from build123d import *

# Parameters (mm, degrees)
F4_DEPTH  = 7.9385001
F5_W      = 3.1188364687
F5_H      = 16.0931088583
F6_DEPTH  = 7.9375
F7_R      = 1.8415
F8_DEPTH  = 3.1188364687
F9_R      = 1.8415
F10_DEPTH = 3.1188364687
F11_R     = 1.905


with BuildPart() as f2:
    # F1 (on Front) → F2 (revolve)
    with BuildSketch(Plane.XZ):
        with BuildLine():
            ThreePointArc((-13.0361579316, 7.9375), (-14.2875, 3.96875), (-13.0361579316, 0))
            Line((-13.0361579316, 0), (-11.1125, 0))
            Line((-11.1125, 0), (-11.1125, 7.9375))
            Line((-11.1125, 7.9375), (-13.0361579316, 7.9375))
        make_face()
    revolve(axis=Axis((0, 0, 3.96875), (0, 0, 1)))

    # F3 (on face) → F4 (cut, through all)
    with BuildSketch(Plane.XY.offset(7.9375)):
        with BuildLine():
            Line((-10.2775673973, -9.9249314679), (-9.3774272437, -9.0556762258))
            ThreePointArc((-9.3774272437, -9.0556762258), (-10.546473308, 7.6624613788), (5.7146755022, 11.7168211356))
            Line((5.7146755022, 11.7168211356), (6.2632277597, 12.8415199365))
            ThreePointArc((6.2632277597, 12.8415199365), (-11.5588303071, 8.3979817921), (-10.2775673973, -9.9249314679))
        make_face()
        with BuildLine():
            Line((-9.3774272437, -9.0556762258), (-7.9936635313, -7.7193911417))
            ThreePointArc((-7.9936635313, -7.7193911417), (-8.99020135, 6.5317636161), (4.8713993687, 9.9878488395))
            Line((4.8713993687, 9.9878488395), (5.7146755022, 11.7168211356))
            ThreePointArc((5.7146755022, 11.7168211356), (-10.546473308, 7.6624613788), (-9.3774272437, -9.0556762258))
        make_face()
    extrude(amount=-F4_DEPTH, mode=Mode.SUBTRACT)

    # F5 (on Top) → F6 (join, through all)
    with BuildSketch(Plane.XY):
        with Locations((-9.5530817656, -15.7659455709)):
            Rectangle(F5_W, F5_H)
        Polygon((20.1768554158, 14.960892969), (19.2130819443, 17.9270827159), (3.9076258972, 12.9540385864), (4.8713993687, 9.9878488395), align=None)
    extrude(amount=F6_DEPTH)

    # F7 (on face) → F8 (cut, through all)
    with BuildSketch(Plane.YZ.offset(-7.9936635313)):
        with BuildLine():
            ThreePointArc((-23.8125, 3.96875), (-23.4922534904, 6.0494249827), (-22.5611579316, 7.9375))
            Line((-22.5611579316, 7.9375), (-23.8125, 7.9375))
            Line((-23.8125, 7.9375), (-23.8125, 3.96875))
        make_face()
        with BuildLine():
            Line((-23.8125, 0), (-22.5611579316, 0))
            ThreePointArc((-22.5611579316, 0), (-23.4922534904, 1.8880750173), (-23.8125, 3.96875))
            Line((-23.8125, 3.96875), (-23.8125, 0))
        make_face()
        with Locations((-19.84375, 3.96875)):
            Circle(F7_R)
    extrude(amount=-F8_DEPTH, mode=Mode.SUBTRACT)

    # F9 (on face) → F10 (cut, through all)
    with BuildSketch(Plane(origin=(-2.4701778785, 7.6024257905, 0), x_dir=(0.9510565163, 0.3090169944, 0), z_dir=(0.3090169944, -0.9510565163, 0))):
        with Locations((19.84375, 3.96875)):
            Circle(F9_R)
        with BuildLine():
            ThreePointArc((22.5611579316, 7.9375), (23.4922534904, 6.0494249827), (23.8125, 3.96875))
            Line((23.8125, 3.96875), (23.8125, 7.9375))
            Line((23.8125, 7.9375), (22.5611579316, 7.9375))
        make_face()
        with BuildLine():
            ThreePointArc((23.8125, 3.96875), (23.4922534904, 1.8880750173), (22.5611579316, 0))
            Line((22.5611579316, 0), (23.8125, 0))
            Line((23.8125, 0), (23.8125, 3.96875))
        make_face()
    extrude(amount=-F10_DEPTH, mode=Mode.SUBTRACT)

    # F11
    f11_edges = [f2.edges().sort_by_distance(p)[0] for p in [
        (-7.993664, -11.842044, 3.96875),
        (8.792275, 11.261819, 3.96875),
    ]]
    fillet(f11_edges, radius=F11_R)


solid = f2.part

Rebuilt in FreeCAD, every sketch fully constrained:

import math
import FreeCAD as App
import Part
import Sketcher
Q = App.Units.Quantity


def edges_at(feature, points):
    """Names of the edges that pass closest to the given points."""
    edges = feature.Shape.Edges
    near = lambda p: min(range(len(edges)), key=lambda i: edges[i].distToShape(Part.Vertex(*p))[0])
    return sorted({f"Edge{near(p) + 1}" for p in points})


def add_polygon(sketch, points):
    """Adds a closed chain of lines whose ends are joined by coincident constraints."""
    first, n = sketch.GeometryCount, len(points)
    for a, b in zip(points, points[1:] + points[:1]):
        sketch.addGeometry(Part.LineSegment(App.Vector(*a, 0), App.Vector(*b, 0)), False)
    for i in range(n):
        sketch.addConstraint(Sketcher.Constraint("Coincident", first + i, 2, first + (i + 1) % n, 1))

doc = App.newDocument("Part")
body = doc.addObject("PartDesign::Body", "Body")

# Sketch on XZ plane
sketch1 = body.newObject("Sketcher::SketchObject", "Sketch")
sketch1.AttachmentSupport = (doc.getObject("XZ_Plane"), [""])
sketch1.MapMode = "FlatFace"
sketch1.addGeometry([
    Part.ArcOfCircle(Part.Circle(App.Vector(-7.4, 4, 0), App.Vector(0, 0, 1), 6.9), math.radians(145), math.radians(215)),
    Part.LineSegment(App.Vector(-13, 0, 0), App.Vector(-11.1, 0, 0)),
    Part.LineSegment(App.Vector(-11.1, 0, 0), App.Vector(-11.1, 7.9, 0)),
    Part.LineSegment(App.Vector(-11.1, 7.9, 0), App.Vector(-13, 7.9, 0)),
], False)
sketch1.addConstraint([
    Sketcher.Constraint("Coincident", 0, 2, 1, 1),
    Sketcher.Constraint("Coincident", 1, 2, 2, 1),
    Sketcher.Constraint("Coincident", 2, 2, 3, 1),
    Sketcher.Constraint("Coincident", 3, 2, 0, 1),
    Sketcher.Constraint("Horizontal", 1),
    Sketcher.Constraint("Vertical", 2),
    Sketcher.Constraint("Horizontal", 3),
    Sketcher.Constraint("PointOnObject", 0, 2, -1),
    Sketcher.Constraint("Vertical", 0, 2, 3, 2),
    Sketcher.Constraint("DistanceY", 2, 1, 2, 2, Q("0.3125 in")),
    Sketcher.Constraint("DistanceX", 1, 2, -1, 1, Q("0.4375 in")),
    Sketcher.Constraint("Radius", 0, 6.919304),
    Sketcher.Constraint("DistanceX", 1, 1, 1, 2, 1.923658),
])
revolution = body.newObject("PartDesign::Revolution", "Revolution")
revolution.Profile = sketch1
revolution.ReferenceAxis = (sketch1, ["V_Axis"])
revolution.Angle = 360

# Sketch on XY plane
sketch2 = body.newObject("Sketcher::SketchObject", "Sketch001")
sketch2.AttachmentSupport = (doc.getObject("XY_Plane"), [""])
sketch2.MapMode = "FlatFace"
sketch2.AttachmentOffset = App.Placement(App.Vector(0, 0, 0.3125 * 25.4), App.Rotation())
sketch2.addGeometry([
    Part.LineSegment(App.Vector(-10.3, -9.9, 0), App.Vector(-9.4, -9.1, 0)),  # 0
    Part.LineSegment(App.Vector(-9.4, -9.1, 0), App.Vector(-8, -7.7, 0)),  # 1
    Part.ArcOfCircle(Part.Circle(App.Vector(0, 0, 0), App.Vector(0, 0, 1), 11.1), math.radians(64), math.radians(224)),  # 2
    Part.LineSegment(App.Vector(4.9, 10, 0), App.Vector(5.7, 11.7, 0)),  # 3
    Part.LineSegment(App.Vector(5.7, 11.7, 0), App.Vector(6.3, 12.8, 0)),  # 4
    Part.ArcOfCircle(Part.Circle(App.Vector(0, 0, 0), App.Vector(0, 0, 1), 14.3), math.radians(64), math.radians(224)),  # 5
], False)
sketch2.addConstraint([
    Sketcher.Constraint("Coincident", 0, 2, 1, 1),
    Sketcher.Constraint("Coincident", 1, 2, 2, 2),
    Sketcher.Constraint("Coincident", 2, 1, 3, 1),
    Sketcher.Constraint("Coincident", 3, 2, 4, 1),
    Sketcher.Constraint("Coincident", 4, 2, 5, 1),
    Sketcher.Constraint("Coincident", 5, 2, 0, 1),
    Sketcher.Constraint("Coincident", 2, 3, -1, 1),
    Sketcher.Constraint("Coincident", 5, 3, -1, 1),
    Sketcher.Constraint("Parallel", 0, 1),
    Sketcher.Constraint("Parallel", 3, 4),
    Sketcher.Constraint("Equal", 1, 3),
    Sketcher.Constraint("Angle", 0, Q("44 deg")),
    Sketcher.Constraint("Angle", 3, Q("64 deg")),
    Sketcher.Constraint("Radius", 2, Q("0.4375 in")),
    Sketcher.Constraint("Radius", 5, Q("0.5625 in")),
    Sketcher.Constraint("DistanceX", 2, 1, 3, 2, Q("0.0331998 in")),
    Sketcher.Constraint("DistanceX", -1, 1, 2, 1, 4.871399),
    Sketcher.Constraint("DistanceY", 1, 2, -1, 1, 7.719391),
])
pocket1 = body.newObject("PartDesign::Pocket", "Pocket")
pocket1.Profile = sketch2
pocket1.Type = "ThroughAll"

# Sketch on XY plane
sketch3 = body.newObject("Sketcher::SketchObject", "Sketch002")
sketch3.AttachmentSupport = (doc.getObject("XY_Plane"), [""])
sketch3.MapMode = "FlatFace"
add_polygon(sketch3, [(-11.1, -7.7), (-11.1, -23.8), (-8, -23.8), (-8, -7.7)])  # lines 0-3
add_polygon(sketch3, [(20.2, 15), (19.2, 17.9), (3.9, 13), (4.9, 10)])  # lines 4-7
sketch3.addConstraint([
    Sketcher.Constraint("Vertical", 0),
    Sketcher.Constraint("Horizontal", 1),
    Sketcher.Constraint("Vertical", 2),
    Sketcher.Constraint("Horizontal", 3),
    Sketcher.Constraint("Perpendicular", 4, 5),
    Sketcher.Constraint("Perpendicular", 5, 6),
    Sketcher.Constraint("Perpendicular", 6, 7),
    Sketcher.Constraint("Angle", 4, Q("108 deg")),
    Sketcher.Constraint("DistanceX", 0, 2, -1, 1, Q("0.4375 in")),
    Sketcher.Constraint("DistanceY", 0, 2, -1, 1, Q("0.9375 in")),
    Sketcher.Constraint("DistanceY", 0, 2, 0, 1, 16.093109),
    Sketcher.Constraint("DistanceX", -1, 1, 6, 2, 4.871399),
    Sketcher.Constraint("Distance", 5, 16.093109),
    Sketcher.Constraint("DistanceX", 1, 1, 1, 2, 3.118836),
    Sketcher.Constraint("DistanceX", -1, 1, 4, 2, 19.213082),
    Sketcher.Constraint("DistanceY", -1, 1, 5, 2, 12.954039),
])
pad1 = body.newObject("PartDesign::Pad", "Pad")
pad1.Profile = sketch3
pad1.Length = Q("0.3125 in")

# Sketch on YZ plane
sketch4 = body.newObject("Sketcher::SketchObject", "Sketch003")
sketch4.AttachmentSupport = (doc.getObject("YZ_Plane"), [""])
sketch4.MapMode = "FlatFace"
sketch4.AttachmentOffset = App.Placement(App.Vector(0, 0, -7.993664), App.Rotation())
sketch4.addGeometry([
    Part.ArcOfCircle(Part.Circle(App.Vector(-16.9, 4, 0), App.Vector(0, 0, 1), 6.9), math.radians(145), math.radians(180)),  # 0
    Part.LineSegment(App.Vector(-22.6, 7.9, 0), App.Vector(-23.8, 7.9, 0)),  # 1
    Part.LineSegment(App.Vector(-23.8, 7.9, 0), App.Vector(-23.8, 4, 0)),  # 2
    Part.LineSegment(App.Vector(-23.8, 0, 0), App.Vector(-22.6, 0, 0)),  # 3
    Part.ArcOfCircle(Part.Circle(App.Vector(-16.9, 4, 0), App.Vector(0, 0, 1), 6.9), math.radians(180), math.radians(215)),  # 4
    Part.LineSegment(App.Vector(-23.8, 4, 0), App.Vector(-23.8, 0, 0)),  # 5
    Part.Circle(App.Vector(-19.8, 4, 0), App.Vector(0, 0, 1), 1.8),  # 6
], False)
sketch4.addConstraint([
    Sketcher.Constraint("Coincident", 0, 1, 1, 1),
    Sketcher.Constraint("Coincident", 1, 2, 2, 1),
    Sketcher.Constraint("Tangent", 2, 2, 0, 2),
    Sketcher.Constraint("Coincident", 3, 2, 4, 2),
    Sketcher.Constraint("Tangent", 4, 1, 5, 1),
    Sketcher.Constraint("Coincident", 5, 2, 3, 1),
    Sketcher.Constraint("Horizontal", 1),
    Sketcher.Constraint("Vertical", 2),
    Sketcher.Constraint("Horizontal", 3),
    Sketcher.Constraint("Vertical", 5),
    Sketcher.Constraint("Coincident", 4, 3, 0, 3),
    Sketcher.Constraint("Equal", 0, 4),
    Sketcher.Constraint("PointOnObject", 3, 2, -1),
    Sketcher.Constraint("Horizontal", 4, 3, 6, 3),
    Sketcher.Constraint("Vertical", 0, 1, 3, 2),
    Sketcher.Constraint("Diameter", 6, Q("0.145 in")),
    Sketcher.Constraint("DistanceY", 2, 2, 2, 1, Q("0.15625 in")),
    Sketcher.Constraint("DistanceX", 6, 3, -1, 1, Q("0.78125 in")),
    Sketcher.Constraint("DistanceX", 1, 2, -1, 1, Q("0.9375 in")),
    Sketcher.Constraint("Radius", 0, 6.919304),
])
pocket2 = body.newObject("PartDesign::Pocket", "Pocket001")
pocket2.Profile = sketch4
pocket2.Type = "ThroughAll"

# Sketch on an angled plane
sketch5 = body.newObject("Sketcher::SketchObject", "Sketch004")
sketch5.Placement = App.Placement(App.Vector(-2.470178, 7.602426, 0), App.Rotation(App.Vector(0.951056516, 0.309016994, 0), App.Vector(0, 0, 0.999999999), App.Vector(0.309016994, -0.951056516, 0), "ZXY"))
sketch5.addGeometry([
    Part.Circle(App.Vector(19.8, 4, 0), App.Vector(0, 0, 1), 1.8),  # 0
    Part.ArcOfCircle(Part.Circle(App.Vector(16.9, 4, 0), App.Vector(0, 0, 1), 6.9), math.radians(0), math.radians(35)),  # 1
    Part.LineSegment(App.Vector(23.8, 4, 0), App.Vector(23.8, 7.9, 0)),  # 2
    Part.LineSegment(App.Vector(23.8, 7.9, 0), App.Vector(22.6, 7.9, 0)),  # 3
    Part.ArcOfCircle(Part.Circle(App.Vector(16.9, 4, 0), App.Vector(0, 0, 1), 6.9), math.radians(-35), math.radians(0)),  # 4
    Part.LineSegment(App.Vector(22.6, 0, 0), App.Vector(23.8, 0, 0)),  # 5
    Part.LineSegment(App.Vector(23.8, 0, 0), App.Vector(23.8, 4, 0)),  # 6
], False)
sketch5.addConstraint([
    Sketcher.Constraint("Tangent", 1, 1, 2, 1),
    Sketcher.Constraint("Coincident", 2, 2, 3, 1),
    Sketcher.Constraint("Coincident", 3, 2, 1, 2),
    Sketcher.Constraint("Coincident", 4, 1, 5, 1),
    Sketcher.Constraint("Coincident", 5, 2, 6, 1),
    Sketcher.Constraint("Tangent", 6, 2, 4, 2),
    Sketcher.Constraint("Vertical", 2),
    Sketcher.Constraint("Horizontal", 3),
    Sketcher.Constraint("Horizontal", 5),
    Sketcher.Constraint("Vertical", 6),
    Sketcher.Constraint("Coincident", 4, 3, 1, 3),
    Sketcher.Constraint("Equal", 1, 4),
    Sketcher.Constraint("PointOnObject", 4, 1, -1),
    Sketcher.Constraint("Horizontal", 0, 3, 1, 3),
    Sketcher.Constraint("Vertical", 3, 2, 4, 1),
    Sketcher.Constraint("Diameter", 0, Q("0.145 in")),
    Sketcher.Constraint("DistanceY", 2, 1, 2, 2, Q("0.15625 in")),
    Sketcher.Constraint("DistanceX", -1, 1, 0, 3, Q("0.78125 in")),
    Sketcher.Constraint("DistanceX", -1, 1, 1, 1, Q("0.9375 in")),
    Sketcher.Constraint("Radius", 1, 6.919304),
])
pocket3 = body.newObject("PartDesign::Pocket", "Pocket002")
pocket3.Profile = sketch5
pocket3.Type = "ThroughAll"
doc.recompute()

fillet = body.newObject("PartDesign::Fillet", "Fillet")
fillet.Base = (pocket3, edges_at(pocket3, [(-7.994, -11.842, 3.969), (8.792, 11.262, 3.969)]))
fillet.Radius = Q("0.075 in")

doc.recompute()
